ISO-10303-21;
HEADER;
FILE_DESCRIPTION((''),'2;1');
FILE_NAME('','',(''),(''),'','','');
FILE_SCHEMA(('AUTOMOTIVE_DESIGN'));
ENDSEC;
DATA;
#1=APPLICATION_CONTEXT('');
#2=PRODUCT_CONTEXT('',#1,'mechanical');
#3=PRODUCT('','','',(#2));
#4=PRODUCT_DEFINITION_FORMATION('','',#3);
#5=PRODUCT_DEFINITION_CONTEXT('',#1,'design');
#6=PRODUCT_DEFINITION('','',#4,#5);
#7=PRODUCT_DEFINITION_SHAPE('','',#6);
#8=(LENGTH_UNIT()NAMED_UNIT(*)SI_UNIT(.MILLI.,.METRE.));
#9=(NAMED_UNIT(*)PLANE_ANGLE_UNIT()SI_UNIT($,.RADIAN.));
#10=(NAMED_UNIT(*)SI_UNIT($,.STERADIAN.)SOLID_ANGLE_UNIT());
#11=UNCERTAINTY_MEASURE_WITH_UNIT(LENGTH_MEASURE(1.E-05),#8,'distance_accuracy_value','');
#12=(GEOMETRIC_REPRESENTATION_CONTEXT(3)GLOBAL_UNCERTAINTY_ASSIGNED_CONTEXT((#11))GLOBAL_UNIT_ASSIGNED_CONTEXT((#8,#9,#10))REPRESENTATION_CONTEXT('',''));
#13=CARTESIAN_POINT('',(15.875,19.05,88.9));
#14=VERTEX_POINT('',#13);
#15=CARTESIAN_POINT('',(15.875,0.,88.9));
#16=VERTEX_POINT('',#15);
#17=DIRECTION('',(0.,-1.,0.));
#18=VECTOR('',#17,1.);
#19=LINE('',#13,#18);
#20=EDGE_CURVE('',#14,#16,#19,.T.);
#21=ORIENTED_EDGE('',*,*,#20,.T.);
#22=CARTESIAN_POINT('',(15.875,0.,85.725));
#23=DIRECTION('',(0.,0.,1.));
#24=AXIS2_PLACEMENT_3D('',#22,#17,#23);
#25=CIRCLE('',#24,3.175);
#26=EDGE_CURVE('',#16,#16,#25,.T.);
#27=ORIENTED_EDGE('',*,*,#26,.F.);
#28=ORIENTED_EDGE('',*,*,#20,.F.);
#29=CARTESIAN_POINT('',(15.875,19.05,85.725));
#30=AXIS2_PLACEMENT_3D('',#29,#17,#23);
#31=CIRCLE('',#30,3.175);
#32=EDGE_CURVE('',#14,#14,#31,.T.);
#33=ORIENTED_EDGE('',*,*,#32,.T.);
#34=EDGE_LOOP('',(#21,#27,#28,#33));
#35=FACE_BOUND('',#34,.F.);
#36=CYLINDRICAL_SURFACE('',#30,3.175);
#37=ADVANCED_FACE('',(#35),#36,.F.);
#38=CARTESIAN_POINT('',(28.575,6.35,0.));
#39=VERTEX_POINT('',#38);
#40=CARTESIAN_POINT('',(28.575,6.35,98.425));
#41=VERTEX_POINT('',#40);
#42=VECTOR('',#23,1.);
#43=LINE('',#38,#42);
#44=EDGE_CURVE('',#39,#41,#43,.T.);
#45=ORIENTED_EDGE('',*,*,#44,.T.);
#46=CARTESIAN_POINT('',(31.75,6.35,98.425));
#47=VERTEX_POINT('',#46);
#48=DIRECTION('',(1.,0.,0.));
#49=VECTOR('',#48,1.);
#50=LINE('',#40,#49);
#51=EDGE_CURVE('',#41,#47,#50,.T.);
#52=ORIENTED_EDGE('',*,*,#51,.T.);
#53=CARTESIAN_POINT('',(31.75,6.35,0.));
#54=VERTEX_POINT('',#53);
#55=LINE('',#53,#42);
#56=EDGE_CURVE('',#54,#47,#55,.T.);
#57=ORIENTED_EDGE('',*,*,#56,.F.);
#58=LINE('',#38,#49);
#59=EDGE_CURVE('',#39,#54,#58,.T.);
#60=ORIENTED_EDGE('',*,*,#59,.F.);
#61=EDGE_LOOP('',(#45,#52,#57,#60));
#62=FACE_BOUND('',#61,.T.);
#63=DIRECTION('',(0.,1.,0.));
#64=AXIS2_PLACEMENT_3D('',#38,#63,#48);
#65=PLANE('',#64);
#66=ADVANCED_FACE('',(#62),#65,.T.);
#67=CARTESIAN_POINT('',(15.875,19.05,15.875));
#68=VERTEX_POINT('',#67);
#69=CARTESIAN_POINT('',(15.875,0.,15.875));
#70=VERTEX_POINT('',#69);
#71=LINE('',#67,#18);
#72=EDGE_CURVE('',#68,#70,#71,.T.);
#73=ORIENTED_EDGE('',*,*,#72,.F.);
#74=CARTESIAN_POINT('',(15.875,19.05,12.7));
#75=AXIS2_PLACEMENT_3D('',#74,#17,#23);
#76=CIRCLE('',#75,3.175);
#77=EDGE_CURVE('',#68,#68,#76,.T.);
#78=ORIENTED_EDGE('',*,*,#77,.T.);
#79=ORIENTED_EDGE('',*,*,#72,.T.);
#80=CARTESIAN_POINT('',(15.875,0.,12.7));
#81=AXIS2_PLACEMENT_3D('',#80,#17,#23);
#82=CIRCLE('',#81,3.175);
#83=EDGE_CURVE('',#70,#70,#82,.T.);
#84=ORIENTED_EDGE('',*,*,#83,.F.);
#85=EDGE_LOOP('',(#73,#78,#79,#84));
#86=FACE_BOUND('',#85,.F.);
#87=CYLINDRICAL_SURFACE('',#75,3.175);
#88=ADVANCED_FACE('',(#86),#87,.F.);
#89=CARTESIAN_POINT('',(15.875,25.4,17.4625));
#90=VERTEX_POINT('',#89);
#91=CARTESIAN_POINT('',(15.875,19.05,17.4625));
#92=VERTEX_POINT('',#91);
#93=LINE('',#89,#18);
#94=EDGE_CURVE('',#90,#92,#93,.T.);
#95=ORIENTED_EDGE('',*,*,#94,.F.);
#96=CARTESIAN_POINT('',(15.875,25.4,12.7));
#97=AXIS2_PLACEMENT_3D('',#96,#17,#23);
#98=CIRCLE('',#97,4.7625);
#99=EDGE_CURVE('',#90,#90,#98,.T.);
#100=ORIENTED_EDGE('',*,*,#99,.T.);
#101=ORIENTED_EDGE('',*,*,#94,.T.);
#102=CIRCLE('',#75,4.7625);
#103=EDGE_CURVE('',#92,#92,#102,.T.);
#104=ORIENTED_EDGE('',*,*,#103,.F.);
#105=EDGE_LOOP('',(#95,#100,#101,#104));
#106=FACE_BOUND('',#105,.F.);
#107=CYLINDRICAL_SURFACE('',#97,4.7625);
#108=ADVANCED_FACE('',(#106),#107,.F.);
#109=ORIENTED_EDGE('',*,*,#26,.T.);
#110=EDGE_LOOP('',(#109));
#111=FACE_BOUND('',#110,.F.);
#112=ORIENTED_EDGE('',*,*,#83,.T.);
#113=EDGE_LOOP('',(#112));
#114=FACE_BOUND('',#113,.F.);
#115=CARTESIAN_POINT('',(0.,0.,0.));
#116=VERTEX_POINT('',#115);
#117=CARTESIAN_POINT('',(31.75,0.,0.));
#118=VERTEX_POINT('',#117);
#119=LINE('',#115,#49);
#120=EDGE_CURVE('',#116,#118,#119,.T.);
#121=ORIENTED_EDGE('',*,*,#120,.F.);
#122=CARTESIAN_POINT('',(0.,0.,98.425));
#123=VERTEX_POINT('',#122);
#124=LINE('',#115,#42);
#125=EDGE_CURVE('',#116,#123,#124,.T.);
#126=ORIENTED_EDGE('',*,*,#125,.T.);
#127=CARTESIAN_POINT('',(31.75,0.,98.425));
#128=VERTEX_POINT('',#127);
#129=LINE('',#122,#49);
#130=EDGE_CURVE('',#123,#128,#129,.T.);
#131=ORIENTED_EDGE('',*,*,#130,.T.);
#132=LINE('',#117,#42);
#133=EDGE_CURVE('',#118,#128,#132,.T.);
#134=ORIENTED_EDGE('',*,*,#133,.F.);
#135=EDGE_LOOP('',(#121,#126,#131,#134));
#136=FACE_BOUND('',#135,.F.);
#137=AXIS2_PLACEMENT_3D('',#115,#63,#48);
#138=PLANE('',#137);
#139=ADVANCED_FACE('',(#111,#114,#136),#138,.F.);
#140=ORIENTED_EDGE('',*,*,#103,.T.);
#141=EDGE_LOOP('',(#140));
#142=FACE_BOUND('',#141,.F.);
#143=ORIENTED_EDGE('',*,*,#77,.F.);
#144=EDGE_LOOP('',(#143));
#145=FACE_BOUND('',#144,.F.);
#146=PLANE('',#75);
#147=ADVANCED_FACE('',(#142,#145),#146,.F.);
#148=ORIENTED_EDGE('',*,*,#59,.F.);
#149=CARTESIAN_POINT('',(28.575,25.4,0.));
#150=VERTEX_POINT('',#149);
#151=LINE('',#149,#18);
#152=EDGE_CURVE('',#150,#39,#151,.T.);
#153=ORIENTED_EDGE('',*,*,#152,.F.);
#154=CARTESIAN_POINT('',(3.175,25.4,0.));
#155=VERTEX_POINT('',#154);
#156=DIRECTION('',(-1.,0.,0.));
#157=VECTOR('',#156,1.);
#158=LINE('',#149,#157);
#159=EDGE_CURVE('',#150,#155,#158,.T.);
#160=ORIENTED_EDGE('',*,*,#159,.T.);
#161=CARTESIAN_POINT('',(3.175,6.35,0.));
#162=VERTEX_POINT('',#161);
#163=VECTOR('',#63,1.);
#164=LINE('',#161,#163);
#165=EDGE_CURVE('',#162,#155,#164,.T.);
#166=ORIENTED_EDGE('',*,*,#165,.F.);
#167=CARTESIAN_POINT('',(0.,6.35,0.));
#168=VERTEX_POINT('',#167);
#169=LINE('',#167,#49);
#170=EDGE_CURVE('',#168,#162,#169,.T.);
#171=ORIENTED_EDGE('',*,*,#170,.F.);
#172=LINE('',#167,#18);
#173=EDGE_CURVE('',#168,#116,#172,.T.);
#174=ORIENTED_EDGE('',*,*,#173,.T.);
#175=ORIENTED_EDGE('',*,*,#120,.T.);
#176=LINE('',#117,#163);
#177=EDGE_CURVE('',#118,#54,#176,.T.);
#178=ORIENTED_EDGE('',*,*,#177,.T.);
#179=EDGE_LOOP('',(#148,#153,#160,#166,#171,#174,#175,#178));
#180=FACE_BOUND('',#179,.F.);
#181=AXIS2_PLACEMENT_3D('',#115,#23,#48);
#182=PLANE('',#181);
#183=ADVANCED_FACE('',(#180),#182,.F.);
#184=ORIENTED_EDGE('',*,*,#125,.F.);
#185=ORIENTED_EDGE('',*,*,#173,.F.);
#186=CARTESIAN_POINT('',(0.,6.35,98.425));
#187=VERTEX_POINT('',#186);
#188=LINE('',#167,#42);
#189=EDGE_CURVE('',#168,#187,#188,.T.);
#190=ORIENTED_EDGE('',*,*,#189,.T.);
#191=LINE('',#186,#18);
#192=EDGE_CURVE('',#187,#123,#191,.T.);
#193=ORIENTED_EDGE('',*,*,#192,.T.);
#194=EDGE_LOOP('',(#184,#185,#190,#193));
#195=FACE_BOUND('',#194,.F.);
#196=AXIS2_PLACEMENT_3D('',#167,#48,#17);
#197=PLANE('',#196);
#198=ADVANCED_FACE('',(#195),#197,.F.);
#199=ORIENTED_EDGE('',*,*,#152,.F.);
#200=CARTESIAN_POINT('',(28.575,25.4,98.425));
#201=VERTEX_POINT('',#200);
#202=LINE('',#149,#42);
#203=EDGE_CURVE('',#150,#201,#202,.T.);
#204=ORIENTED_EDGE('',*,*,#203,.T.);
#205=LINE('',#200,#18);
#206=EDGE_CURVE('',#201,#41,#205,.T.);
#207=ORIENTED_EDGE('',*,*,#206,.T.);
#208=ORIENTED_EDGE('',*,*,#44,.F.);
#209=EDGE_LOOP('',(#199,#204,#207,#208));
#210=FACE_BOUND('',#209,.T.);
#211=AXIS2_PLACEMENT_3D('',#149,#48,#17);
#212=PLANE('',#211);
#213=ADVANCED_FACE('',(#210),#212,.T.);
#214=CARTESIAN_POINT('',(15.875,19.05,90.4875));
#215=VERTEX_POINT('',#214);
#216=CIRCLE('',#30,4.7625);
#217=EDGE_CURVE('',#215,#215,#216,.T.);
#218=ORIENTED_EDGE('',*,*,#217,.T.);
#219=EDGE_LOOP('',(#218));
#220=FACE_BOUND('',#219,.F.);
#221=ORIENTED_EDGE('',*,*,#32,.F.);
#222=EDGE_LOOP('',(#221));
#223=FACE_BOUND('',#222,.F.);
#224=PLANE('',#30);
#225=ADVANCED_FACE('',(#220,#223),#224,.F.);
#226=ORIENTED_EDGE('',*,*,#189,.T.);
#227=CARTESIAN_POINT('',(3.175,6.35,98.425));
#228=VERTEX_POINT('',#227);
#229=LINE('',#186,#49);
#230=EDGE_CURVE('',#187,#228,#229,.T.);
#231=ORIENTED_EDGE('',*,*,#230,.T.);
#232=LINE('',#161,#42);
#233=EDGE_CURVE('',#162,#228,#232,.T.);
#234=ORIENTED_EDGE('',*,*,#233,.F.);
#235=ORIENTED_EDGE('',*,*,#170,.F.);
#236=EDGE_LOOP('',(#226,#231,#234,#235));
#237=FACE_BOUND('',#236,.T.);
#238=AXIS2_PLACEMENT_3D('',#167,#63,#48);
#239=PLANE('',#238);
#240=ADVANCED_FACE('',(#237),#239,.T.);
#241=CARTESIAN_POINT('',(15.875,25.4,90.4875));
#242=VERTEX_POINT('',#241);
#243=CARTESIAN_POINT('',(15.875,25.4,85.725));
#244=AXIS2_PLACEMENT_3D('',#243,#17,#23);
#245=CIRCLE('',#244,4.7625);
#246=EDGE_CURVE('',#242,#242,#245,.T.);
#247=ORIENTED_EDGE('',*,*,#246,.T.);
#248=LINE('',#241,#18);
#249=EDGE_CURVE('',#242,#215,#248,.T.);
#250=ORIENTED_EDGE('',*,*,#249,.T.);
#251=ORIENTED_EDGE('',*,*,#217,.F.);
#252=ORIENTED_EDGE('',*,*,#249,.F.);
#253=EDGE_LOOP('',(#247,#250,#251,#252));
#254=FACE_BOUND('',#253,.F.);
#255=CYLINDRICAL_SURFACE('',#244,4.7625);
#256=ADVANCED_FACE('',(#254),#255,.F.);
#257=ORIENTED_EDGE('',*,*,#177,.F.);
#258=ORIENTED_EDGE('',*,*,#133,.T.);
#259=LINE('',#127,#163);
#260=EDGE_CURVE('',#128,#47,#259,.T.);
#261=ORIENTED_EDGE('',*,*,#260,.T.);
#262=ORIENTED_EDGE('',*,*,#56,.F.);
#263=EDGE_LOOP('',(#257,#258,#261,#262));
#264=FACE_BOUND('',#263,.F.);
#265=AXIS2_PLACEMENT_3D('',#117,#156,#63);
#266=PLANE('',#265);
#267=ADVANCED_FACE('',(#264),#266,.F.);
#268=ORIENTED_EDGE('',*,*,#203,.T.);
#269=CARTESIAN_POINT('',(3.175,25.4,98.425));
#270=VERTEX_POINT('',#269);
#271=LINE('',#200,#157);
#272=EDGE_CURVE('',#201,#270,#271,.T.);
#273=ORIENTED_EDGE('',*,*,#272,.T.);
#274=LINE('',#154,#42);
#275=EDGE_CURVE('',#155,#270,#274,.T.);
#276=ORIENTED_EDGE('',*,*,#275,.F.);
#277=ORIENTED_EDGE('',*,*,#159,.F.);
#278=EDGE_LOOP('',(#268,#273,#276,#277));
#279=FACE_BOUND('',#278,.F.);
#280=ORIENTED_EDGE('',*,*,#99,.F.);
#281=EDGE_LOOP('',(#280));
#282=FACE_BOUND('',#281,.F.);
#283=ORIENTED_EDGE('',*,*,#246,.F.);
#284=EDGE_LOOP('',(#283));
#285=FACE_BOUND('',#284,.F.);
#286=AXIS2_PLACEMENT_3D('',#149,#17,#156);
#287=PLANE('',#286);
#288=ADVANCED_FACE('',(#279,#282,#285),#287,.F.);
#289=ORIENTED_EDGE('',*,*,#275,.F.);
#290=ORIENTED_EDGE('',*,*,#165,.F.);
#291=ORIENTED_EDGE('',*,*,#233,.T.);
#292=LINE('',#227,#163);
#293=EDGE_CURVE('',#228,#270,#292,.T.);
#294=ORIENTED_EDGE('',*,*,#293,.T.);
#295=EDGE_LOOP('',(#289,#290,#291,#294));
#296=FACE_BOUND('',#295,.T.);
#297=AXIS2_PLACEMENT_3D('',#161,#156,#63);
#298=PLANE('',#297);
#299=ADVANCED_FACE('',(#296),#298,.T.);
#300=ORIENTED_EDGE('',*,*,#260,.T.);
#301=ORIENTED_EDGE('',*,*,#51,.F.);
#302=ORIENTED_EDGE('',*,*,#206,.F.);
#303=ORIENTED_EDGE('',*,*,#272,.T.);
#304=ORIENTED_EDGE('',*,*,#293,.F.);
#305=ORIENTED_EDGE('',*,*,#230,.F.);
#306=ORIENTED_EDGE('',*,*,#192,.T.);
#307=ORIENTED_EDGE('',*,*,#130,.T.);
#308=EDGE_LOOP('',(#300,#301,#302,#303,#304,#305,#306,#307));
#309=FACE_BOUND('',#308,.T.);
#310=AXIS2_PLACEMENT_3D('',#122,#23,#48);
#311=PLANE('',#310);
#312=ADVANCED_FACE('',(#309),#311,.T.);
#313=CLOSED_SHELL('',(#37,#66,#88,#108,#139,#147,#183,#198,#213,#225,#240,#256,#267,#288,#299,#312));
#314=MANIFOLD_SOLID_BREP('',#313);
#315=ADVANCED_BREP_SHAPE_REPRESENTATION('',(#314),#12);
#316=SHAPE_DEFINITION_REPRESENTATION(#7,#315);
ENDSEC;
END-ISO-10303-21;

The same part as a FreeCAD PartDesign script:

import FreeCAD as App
import Part
import Sketcher
Q = App.Units.Quantity


def add_polygon(sketch, points):
    """Adds a closed chain of lines whose ends are joined by coincident constraints."""
    first, n = sketch.GeometryCount, len(points)
    for a, b in zip(points, points[1:] + points[:1]):
        sketch.addGeometry(Part.LineSegment(App.Vector(*a, 0), App.Vector(*b, 0)), False)
    for i in range(n):
        sketch.addConstraint(Sketcher.Constraint("Coincident", first + i, 2, first + (i + 1) % n, 1))

doc = App.newDocument("Part")
body = doc.addObject("PartDesign::Body", "Body")

sketch1 = body.newObject("Sketcher::SketchObject", "Sketch")
sketch1.AttachmentSupport = (doc.getObject("XY_Plane"), [""])
sketch1.MapMode = "FlatFace"
add_polygon(sketch1, [(0, 6.3), (0, 0), (31.8, 0), (31.8, 6.3), (28.6, 6.3), (28.6, 25.4), (3.2, 25.4), (3.2, 6.3)])
sketch1.addConstraint([
    Sketcher.Constraint("Vertical", 0),
    Sketcher.Constraint("Horizontal", 1),
    Sketcher.Constraint("Vertical", 2),
    Sketcher.Constraint("Horizontal", 3),
    Sketcher.Constraint("Vertical", 4),
    Sketcher.Constraint("Horizontal", 5),
    Sketcher.Constraint("Vertical", 6),
    Sketcher.Constraint("Horizontal", 7),
    Sketcher.Constraint("Coincident", 0, 2, -1, 1),
    Sketcher.Constraint("Horizontal", 3, 2, 6, 2),
    Sketcher.Constraint("Equal", 3, 7),
    Sketcher.Constraint("DistanceX", 5, 2, 5, 1, Q("1 in")),
    Sketcher.Constraint("DistanceY", -1, 1, 4, 2, Q("1 in")),
    Sketcher.Constraint("DistanceX", 1, 1, 1, 2, Q("1.25 in")),
    Sketcher.Constraint("DistanceY", 0, 2, 0, 1, Q("0.25 in")),
])
pad1 = body.newObject("PartDesign::Pad", "Pad")
pad1.Profile = sketch1
pad1.Length = Q("3.875 in")

sketch2 = body.newObject("Sketcher::SketchObject", "Sketch001")
sketch2.AttachmentSupport = (doc.getObject("XZ_Plane"), [""])
sketch2.MapMode = "FlatFace"
sketch2.AttachmentOffset = App.Placement(App.Vector(0, 0, -1 * 25.4), App.Rotation())
sketch2.addGeometry([
    Part.Circle(App.Vector(15.9, 85.7, 0), App.Vector(0, 0, 1), 3.2),
    Part.Circle(App.Vector(15.9, 12.7, 0), App.Vector(0, 0, 1), 3.2),
], False)
sketch2.addConstraint([
    Sketcher.Constraint("Equal", 0, 1),
    Sketcher.Constraint("Vertical", 0, 3, 1, 3),
    Sketcher.Constraint("Diameter", 0, Q("0.25 in")),
    Sketcher.Constraint("DistanceY", -1, 1, 1, 3, Q("0.5 in")),
    Sketcher.Constraint("DistanceX", -1, 1, 0, 3, Q("0.625 in")),
    Sketcher.Constraint("DistanceY", -1, 1, 0, 3, Q("3.375 in")),
])
doc.recompute()
hole = body.newObject("PartDesign::Hole", "Hole")
hole.Profile = sketch2
hole.ThreadType = "None"
hole.Diameter = Q("0.25 in")
hole.DepthType = "ThroughAll"
hole.HoleCutType = "Counterbore"
hole.HoleCutDiameter = Q("0.375 in")
hole.HoleCutDepth = Q("0.25 in")
hole.Reversed = True

doc.recompute()
